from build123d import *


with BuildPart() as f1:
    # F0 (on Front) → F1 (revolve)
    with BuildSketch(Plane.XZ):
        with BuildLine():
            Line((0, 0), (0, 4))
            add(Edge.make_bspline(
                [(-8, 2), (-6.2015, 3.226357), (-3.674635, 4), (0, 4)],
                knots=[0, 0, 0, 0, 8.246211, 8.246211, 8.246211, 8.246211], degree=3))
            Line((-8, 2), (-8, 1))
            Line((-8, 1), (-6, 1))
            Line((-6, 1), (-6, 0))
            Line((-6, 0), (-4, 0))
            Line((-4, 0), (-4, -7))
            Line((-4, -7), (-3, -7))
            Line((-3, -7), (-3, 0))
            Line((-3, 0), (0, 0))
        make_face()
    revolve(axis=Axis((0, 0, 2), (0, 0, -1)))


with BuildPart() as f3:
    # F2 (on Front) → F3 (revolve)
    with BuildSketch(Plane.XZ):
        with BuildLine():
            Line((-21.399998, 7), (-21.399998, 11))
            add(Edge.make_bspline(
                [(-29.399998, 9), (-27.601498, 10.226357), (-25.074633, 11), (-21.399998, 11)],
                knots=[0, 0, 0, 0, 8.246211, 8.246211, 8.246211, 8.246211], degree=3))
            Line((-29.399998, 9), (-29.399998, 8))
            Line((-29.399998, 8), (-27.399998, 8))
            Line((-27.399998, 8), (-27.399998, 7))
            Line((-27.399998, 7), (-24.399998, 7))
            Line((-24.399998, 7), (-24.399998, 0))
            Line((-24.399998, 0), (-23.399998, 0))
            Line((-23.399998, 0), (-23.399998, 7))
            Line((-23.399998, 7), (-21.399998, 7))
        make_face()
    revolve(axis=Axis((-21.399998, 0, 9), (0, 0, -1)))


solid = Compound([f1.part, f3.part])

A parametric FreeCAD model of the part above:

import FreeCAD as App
import Part
import Sketcher

doc = App.newDocument("Part")
body = doc.addObject("PartDesign::Body", "Body")

sketch1 = doc.addObject("Sketcher::SketchObject", "Sketch")
body.addObject(sketch1)
sketch1.AttachmentSupport = (doc.XZ_Plane, [""])
sketch1.MapMode = "FlatFace"
sketch1.addGeometry(Part.LineSegment(App.Vector(0, 0, 0), App.Vector(0, 4, 0)), False)
sketch1.addGeometry(Part.BSplineCurve([App.Vector(-8, 2, 0), App.Vector(-6.2015, 3.226357, 0), App.Vector(-3.674635, 4, 0), App.Vector(0, 4, 0)], [4, 4], [0, 8.246211], False, 3, [1, 1, 1, 1], False), False)
sketch1.addGeometry(Part.LineSegment(App.Vector(-8, 2, 0), App.Vector(-8, 1, 0)), False)
sketch1.addGeometry(Part.LineSegment(App.Vector(-8, 1, 0), App.Vector(-6, 1, 0)), False)
sketch1.addGeometry(Part.LineSegment(App.Vector(-6, 1, 0), App.Vector(-6, 0, 0)), False)
sketch1.addGeometry(Part.LineSegment(App.Vector(-6, 0, 0), App.Vector(-4, 0, 0)), False)
sketch1.addGeometry(Part.LineSegment(App.Vector(-4, 0, 0), App.Vector(-4, -7, 0)), False)
sketch1.addGeometry(Part.LineSegment(App.Vector(-4, -7, 0), App.Vector(-3, -7, 0)), False)
sketch1.addGeometry(Part.LineSegment(App.Vector(-3, -7, 0), App.Vector(-3, 0, 0)), False)
sketch1.addGeometry(Part.LineSegment(App.Vector(-3, 0, 0), App.Vector(0, 0, 0)), False)
sketch1.addConstraint(Sketcher.Constraint("Block", 1))
sketch1.addConstraint(Sketcher.Constraint("Coincident", 0, 2, 1, 2))
sketch1.addConstraint(Sketcher.Constraint("Coincident", 1, 1, 2, 1))
sketch1.addConstraint(Sketcher.Constraint("Coincident", 2, 2, 3, 1))
sketch1.addConstraint(Sketcher.Constraint("Coincident", 3, 2, 4, 1))
sketch1.addConstraint(Sketcher.Constraint("Coincident", 4, 2, 5, 1))
sketch1.addConstraint(Sketcher.Constraint("Coincident", 5, 2, 6, 1))
sketch1.addConstraint(Sketcher.Constraint("Coincident", 6, 2, 7, 1))
sketch1.addConstraint(Sketcher.Constraint("Coincident", 7, 2, 8, 1))
sketch1.addConstraint(Sketcher.Constraint("Coincident", 8, 2, 9, 1))
sketch1.addConstraint(Sketcher.Constraint("Coincident", 9, 2, 0, 1))
sketch1.addConstraint(Sketcher.Constraint("Vertical", 0))
sketch1.addConstraint(Sketcher.Constraint("Vertical", 2))
sketch1.addConstraint(Sketcher.Constraint("Horizontal", 3))
sketch1.addConstraint(Sketcher.Constraint("Vertical", 4))
sketch1.addConstraint(Sketcher.Constraint("Horizontal", 5))
sketch1.addConstraint(Sketcher.Constraint("Vertical", 6))
sketch1.addConstraint(Sketcher.Constraint("Horizontal", 7))
sketch1.addConstraint(Sketcher.Constraint("Vertical", 8))
sketch1.addConstraint(Sketcher.Constraint("Horizontal", 9))
sketch1.addConstraint(Sketcher.Constraint("PointOnObject", 4, 2, -1))
sketch1.addConstraint(Sketcher.Constraint("PointOnObject", 8, 2, -1))
sketch1.addConstraint(Sketcher.Constraint("Equal", 3, 5))
sketch1.addConstraint(Sketcher.Constraint("Equal", 7, 2))
sketch1.addConstraint(Sketcher.Constraint("Equal", 2, 4))
sketch1.addConstraint(Sketcher.Constraint("DistanceX", 3, 1, 3, 2, 2.0))
sketch1.addConstraint(Sketcher.Constraint("DistanceY", 6, 2, 6, 1, 7.0))
revolution = doc.addObject("PartDesign::Revolution", "Revolution")
body.addObject(revolution)
revolution.Profile = sketch1
revolution.ReferenceAxis = (sketch1, ["V_Axis"])
revolution.Angle = 360
body2 = doc.addObject("PartDesign::Body", "Body001")

sketch2 = doc.addObject("Sketcher::SketchObject", "Sketch001")
body2.addObject(sketch2)
sketch2.AttachmentSupport = (doc.getObject("XZ_Plane001"), [""])
sketch2.MapMode = "FlatFace"
sketch2.addGeometry(Part.LineSegment(App.Vector(-21.399998, 7, 0), App.Vector(-21.399998, 11, 0)), False)
sketch2.addGeometry(Part.BSplineCurve([App.Vector(-29.399998, 9, 0), App.Vector(-27.601498, 10.226357, 0), App.Vector(-25.074633, 11, 0), App.Vector(-21.399998, 11, 0)], [4, 4], [0, 8.246211], False, 3, [1, 1, 1, 1], False), False)
sketch2.addGeometry(Part.LineSegment(App.Vector(-29.399998, 9, 0), App.Vector(-29.399998, 8, 0)), False)
sketch2.addGeometry(Part.LineSegment(App.Vector(-29.399998, 8, 0), App.Vector(-27.399998, 8, 0)), False)
sketch2.addGeometry(Part.LineSegment(App.Vector(-27.399998, 8, 0), App.Vector(-27.399998, 7, 0)), False)
sketch2.addGeometry(Part.LineSegment(App.Vector(-27.399998, 7, 0), App.Vector(-24.399998, 7, 0)), False)
sketch2.addGeometry(Part.LineSegment(App.Vector(-24.399998, 7, 0), App.Vector(-24.399998, 0, 0)), False)
sketch2.addGeometry(Part.LineSegment(App.Vector(-24.399998, 0, 0), App.Vector(-23.399998, 0, 0)), False)
sketch2.addGeometry(Part.LineSegment(App.Vector(-23.399998, 0, 0), App.Vector(-23.399998, 7, 0)), False)
sketch2.addGeometry(Part.LineSegment(App.Vector(-23.399998, 7, 0), App.Vector(-21.399998, 7, 0)), False)
sketch2.addGeometry(Part.LineSegment(App.Vector(-21.399998, 11, 0), App.Vector(-21.399998, 0, 0)), True)
sketch2.addConstraint(Sketcher.Constraint("Block", 1))
sketch2.addConstraint(Sketcher.Constraint("Coincident", 0, 2, 1, 2))
sketch2.addConstraint(Sketcher.Constraint("Coincident", 1, 1, 2, 1))
sketch2.addConstraint(Sketcher.Constraint("Coincident", 2, 2, 3, 1))
sketch2.addConstraint(Sketcher.Constraint("Coincident", 3, 2, 4, 1))
sketch2.addConstraint(Sketcher.Constraint("Coincident", 4, 2, 5, 1))
sketch2.addConstraint(Sketcher.Constraint("Coincident", 5, 2, 6, 1))
sketch2.addConstraint(Sketcher.Constraint("Coincident", 6, 2, 7, 1))
sketch2.addConstraint(Sketcher.Constraint("Coincident", 7, 2, 8, 1))
sketch2.addConstraint(Sketcher.Constraint("Coincident", 8, 2, 9, 1))
sketch2.addConstraint(Sketcher.Constraint("Coincident", 9, 2, 0, 1))
sketch2.addConstraint(Sketcher.Constraint("Vertical", 0))
sketch2.addConstraint(Sketcher.Constraint("Vertical", 2))
sketch2.addConstraint(Sketcher.Constraint("Horizontal", 3))
sketch2.addConstraint(Sketcher.Constraint("Vertical", 4))
sketch2.addConstraint(Sketcher.Constraint("Horizontal", 5))
sketch2.addConstraint(Sketcher.Constraint("Vertical", 6))
sketch2.addConstraint(Sketcher.Constraint("Horizontal", 7))
sketch2.addConstraint(Sketcher.Constraint("Vertical", 8))
sketch2.addConstraint(Sketcher.Constraint("Horizontal", 9))
sketch2.addConstraint(Sketcher.Constraint("Vertical", 10))
sketch2.addConstraint(Sketcher.Constraint("Coincident", 10, 1, 0, 2))
sketch2.addConstraint(Sketcher.Constraint("PointOnObject", 6, 2, -1))
sketch2.addConstraint(Sketcher.Constraint("PointOnObject", 10, 2, -1))
sketch2.addConstraint(Sketcher.Constraint("DistanceX", 3, 1, 3, 2, 2.0))
sketch2.addConstraint(Sketcher.Constraint("DistanceX", 5, 1, 5, 2, 3.0))
sketch2.addConstraint(Sketcher.Constraint("DistanceX", 7, 1, 7, 2, 1.0))
sketch2.addConstraint(Sketcher.Constraint("DistanceY", 0, 1, 0, 2, 4.0))
sketch2.addConstraint(Sketcher.Constraint("DistanceY", 2, 2, 2, 1, 1.0))
sketch2.addConstraint(Sketcher.Constraint("DistanceY", 4, 2, 4, 1, 1.0))
revolution2 = doc.addObject("PartDesign::Revolution", "Revolution001")
body2.addObject(revolution2)
revolution2.Profile = sketch2
revolution2.ReferenceAxis = (sketch2, ["Axis0"])
revolution2.Angle = 360

doc.recompute()
